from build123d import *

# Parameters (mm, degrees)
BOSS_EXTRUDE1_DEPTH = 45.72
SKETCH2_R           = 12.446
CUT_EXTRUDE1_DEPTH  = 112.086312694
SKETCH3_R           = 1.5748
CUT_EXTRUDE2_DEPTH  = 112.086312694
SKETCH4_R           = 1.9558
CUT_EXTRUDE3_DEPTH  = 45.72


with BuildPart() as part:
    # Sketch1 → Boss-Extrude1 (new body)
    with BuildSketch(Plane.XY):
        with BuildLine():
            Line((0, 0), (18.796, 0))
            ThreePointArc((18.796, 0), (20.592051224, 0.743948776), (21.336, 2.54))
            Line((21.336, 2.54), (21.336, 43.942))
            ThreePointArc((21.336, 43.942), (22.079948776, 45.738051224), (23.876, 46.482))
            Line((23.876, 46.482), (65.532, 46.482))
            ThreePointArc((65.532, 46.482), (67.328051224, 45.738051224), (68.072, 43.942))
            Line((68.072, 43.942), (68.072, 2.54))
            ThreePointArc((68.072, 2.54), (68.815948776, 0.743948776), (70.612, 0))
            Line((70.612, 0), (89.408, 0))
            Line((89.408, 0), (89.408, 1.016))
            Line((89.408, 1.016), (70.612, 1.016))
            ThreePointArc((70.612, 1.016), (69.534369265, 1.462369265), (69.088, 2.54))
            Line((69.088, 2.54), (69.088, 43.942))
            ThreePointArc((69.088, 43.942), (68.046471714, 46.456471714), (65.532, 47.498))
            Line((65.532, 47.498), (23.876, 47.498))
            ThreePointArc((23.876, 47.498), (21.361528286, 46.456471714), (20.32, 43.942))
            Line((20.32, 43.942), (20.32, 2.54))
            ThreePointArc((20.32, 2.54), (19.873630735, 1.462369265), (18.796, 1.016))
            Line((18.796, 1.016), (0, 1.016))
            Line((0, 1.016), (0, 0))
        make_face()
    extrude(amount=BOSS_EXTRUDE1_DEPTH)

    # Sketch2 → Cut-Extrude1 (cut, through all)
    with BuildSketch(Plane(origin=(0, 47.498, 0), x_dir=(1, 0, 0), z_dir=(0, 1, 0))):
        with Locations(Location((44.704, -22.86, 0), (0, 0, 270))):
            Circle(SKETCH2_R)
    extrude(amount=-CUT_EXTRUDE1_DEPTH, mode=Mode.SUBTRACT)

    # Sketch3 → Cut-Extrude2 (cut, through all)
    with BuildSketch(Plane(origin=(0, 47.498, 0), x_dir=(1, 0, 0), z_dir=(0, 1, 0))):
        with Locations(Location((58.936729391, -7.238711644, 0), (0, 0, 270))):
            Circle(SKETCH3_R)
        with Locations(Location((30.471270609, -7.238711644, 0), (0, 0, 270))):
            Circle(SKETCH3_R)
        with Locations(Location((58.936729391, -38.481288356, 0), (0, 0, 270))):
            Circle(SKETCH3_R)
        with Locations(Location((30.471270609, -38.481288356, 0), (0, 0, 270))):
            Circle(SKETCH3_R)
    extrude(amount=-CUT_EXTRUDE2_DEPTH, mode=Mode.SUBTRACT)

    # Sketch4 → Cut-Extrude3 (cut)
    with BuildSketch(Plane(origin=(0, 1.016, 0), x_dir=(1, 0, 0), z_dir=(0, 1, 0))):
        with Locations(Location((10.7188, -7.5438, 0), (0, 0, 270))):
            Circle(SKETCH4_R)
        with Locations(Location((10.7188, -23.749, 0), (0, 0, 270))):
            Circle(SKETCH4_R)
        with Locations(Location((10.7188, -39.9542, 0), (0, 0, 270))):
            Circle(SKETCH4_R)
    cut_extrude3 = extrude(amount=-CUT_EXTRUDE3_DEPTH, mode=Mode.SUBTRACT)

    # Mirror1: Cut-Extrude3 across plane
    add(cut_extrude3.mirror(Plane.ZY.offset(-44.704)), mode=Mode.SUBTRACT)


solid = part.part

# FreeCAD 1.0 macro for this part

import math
import FreeCAD as App
import Part
import Sketcher
Q = App.Units.Quantity

doc = App.newDocument("Part")
body = doc.addObject("PartDesign::Body", "Body")

# Sketch on XY plane
sketch1 = doc.addObject("Sketcher::SketchObject", "Sketch")
body.addObject(sketch1)
sketch1.AttachmentSupport = (doc.XY_Plane, [""])
sketch1.MapMode = "FlatFace"
sketch1.addGeometry([
    Part.LineSegment(App.Vector(0, 0, 0), App.Vector(18.8, 0, 0)),  # 0
    Part.ArcOfCircle(Part.Circle(App.Vector(18.8, 2.5, 0), App.Vector(0, 0, 1), 2.5), math.radians(-90), math.radians(0)),  # 1
    Part.LineSegment(App.Vector(21.3, 2.5, 0), App.Vector(21.3, 43.9, 0)),  # 2
    Part.ArcOfCircle(Part.Circle(App.Vector(23.9, 43.9, 0), App.Vector(0, 0, 1), 2.5), math.radians(90), math.radians(180)),  # 3
    Part.LineSegment(App.Vector(23.9, 46.5, 0), App.Vector(65.5, 46.5, 0)),  # 4
    Part.ArcOfCircle(Part.Circle(App.Vector(65.5, 43.9, 0), App.Vector(0, 0, 1), 2.5), math.radians(0), math.radians(90)),  # 5
    Part.LineSegment(App.Vector(68.1, 43.9, 0), App.Vector(68.1, 2.5, 0)),  # 6
    Part.ArcOfCircle(Part.Circle(App.Vector(70.6, 2.5, 0), App.Vector(0, 0, 1), 2.5), math.radians(-180), math.radians(-90)),  # 7
    Part.LineSegment(App.Vector(70.6, 0, 0), App.Vector(89.4, 0, 0)),  # 8
    Part.LineSegment(App.Vector(89.4, 0, 0), App.Vector(89.4, 1, 0)),  # 9
    Part.LineSegment(App.Vector(89.4, 1, 0), App.Vector(70.6, 1, 0)),  # 10
    Part.ArcOfCircle(Part.Circle(App.Vector(70.6, 2.5, 0), App.Vector(0, 0, 1), 1.5), math.radians(180), math.radians(270)),  # 11
    Part.LineSegment(App.Vector(69.1, 2.5, 0), App.Vector(69.1, 43.9, 0)),  # 12
    Part.ArcOfCircle(Part.Circle(App.Vector(65.5, 43.9, 0), App.Vector(0, 0, 1), 3.6), math.radians(0), math.radians(90)),  # 13
    Part.LineSegment(App.Vector(65.5, 47.5, 0), App.Vector(23.9, 47.5, 0)),  # 14
    Part.ArcOfCircle(Part.Circle(App.Vector(23.9, 43.9, 0), App.Vector(0, 0, 1), 3.6), math.radians(90), math.radians(180)),  # 15
    Part.LineSegment(App.Vector(20.3, 43.9, 0), App.Vector(20.3, 2.5, 0)),  # 16
    Part.ArcOfCircle(Part.Circle(App.Vector(18.8, 2.5, 0), App.Vector(0, 0, 1), 1.5), math.radians(-90), math.radians(0)),  # 17
    Part.LineSegment(App.Vector(18.8, 1, 0), App.Vector(0, 1, 0)),  # 18
    Part.LineSegment(App.Vector(0, 1, 0), App.Vector(0, 0, 0)),  # 19
], False)
sketch1.addConstraint([
    Sketcher.Constraint("Tangent", 0, 2, 1, 1),
    Sketcher.Constraint("Tangent", 1, 2, 2, 1),
    Sketcher.Constraint("Tangent", 2, 2, 3, 2),
    Sketcher.Constraint("Tangent", 3, 1, 4, 1),
    Sketcher.Constraint("Tangent", 4, 2, 5, 2),
    Sketcher.Constraint("Tangent", 5, 1, 6, 1),
    Sketcher.Constraint("Tangent", 6, 2, 7, 1),
    Sketcher.Constraint("Tangent", 7, 2, 8, 1),
    Sketcher.Constraint("Coincident", 8, 2, 9, 1),
    Sketcher.Constraint("Coincident", 9, 2, 10, 1),
    Sketcher.Constraint("Tangent", 10, 2, 11, 2),
    Sketcher.Constraint("Tangent", 11, 1, 12, 1),
    Sketcher.Constraint("Tangent", 12, 2, 13, 1),
    Sketcher.Constraint("Tangent", 13, 2, 14, 1),
    Sketcher.Constraint("Tangent", 14, 2, 15, 1),
    Sketcher.Constraint("Tangent", 15, 2, 16, 1),
    Sketcher.Constraint("Tangent", 16, 2, 17, 2),
    Sketcher.Constraint("Tangent", 17, 1, 18, 1),
    Sketcher.Constraint("Coincident", 18, 2, 19, 1),
    Sketcher.Constraint("Coincident", 19, 2, 0, 1),
    Sketcher.Constraint("Horizontal", 0),
    Sketcher.Constraint("Vertical", 2),
    Sketcher.Constraint("Horizontal", 4),
    Sketcher.Constraint("Vertical", 6),
    Sketcher.Constraint("Horizontal", 8),
    Sketcher.Constraint("Vertical", 9),
    Sketcher.Constraint("Horizontal", 10),
    Sketcher.Constraint("Vertical", 12),
    Sketcher.Constraint("Horizontal", 14),
    Sketcher.Constraint("Vertical", 16),
    Sketcher.Constraint("Horizontal", 18),
    Sketcher.Constraint("Vertical", 19),
    Sketcher.Constraint("Coincident", 19, 2, -1, 1),
    Sketcher.Constraint("Coincident", 11, 3, 7, 3),
    Sketcher.Constraint("Coincident", 13, 3, 5, 3),
    Sketcher.Constraint("Coincident", 15, 3, 3, 3),
    Sketcher.Constraint("Coincident", 17, 3, 1, 3),
    Sketcher.Constraint("Equal", 1, 3),
    Sketcher.Constraint("Equal", 3, 5),
    Sketcher.Constraint("Equal", 5, 7),
    Sketcher.Constraint("PointOnObject", 7, 2, -1),
    Sketcher.Constraint("Equal", 0, 8),
    Sketcher.Constraint("Radius", 1, Q("0.1 in")),
    Sketcher.Constraint("Radius", 11, Q("0.06 in")),
    Sketcher.Constraint("DistanceX", 0, 1, 0, 2, Q("0.74 in")),
    Sketcher.Constraint("DistanceX", 4, 1, 4, 2, Q("1.64 in")),
    Sketcher.Constraint("DistanceY", 2, 1, 2, 2, Q("1.63 in")),
])
pad1 = doc.addObject("PartDesign::Pad", "Pad")
body.addObject(pad1)
pad1.Profile = sketch1
pad1.Length = Q("1.8 in")

# Sketch on XZ plane
sketch2 = doc.addObject("Sketcher::SketchObject", "Sketch001")
body.addObject(sketch2)
sketch2.AttachmentSupport = (doc.XZ_Plane, [""])
sketch2.MapMode = "FlatFace"
sketch2.AttachmentOffset = App.Placement(App.Vector(0, 0, -1.87 * 25.4), App.Rotation())
sketch2.addGeometry(Part.Circle(App.Vector(45, 23, 0), App.Vector(0, 0, 1), 12), False)
sketch2.addConstraint([
    Sketcher.Constraint("Diameter", 0, Q("0.98 in")),
    Sketcher.Constraint("DistanceY", -1, 1, 0, 3, Q("0.9 in")),
    Sketcher.Constraint("DistanceX", -1, 1, 0, 3, Q("1.76 in")),
])
pocket1 = doc.addObject("PartDesign::Pocket", "Pocket")
body.addObject(pocket1)
pocket1.Profile = sketch2
pocket1.Type = "ThroughAll"
pocket1.Reversed = True

# Sketch on XZ plane
sketch3 = doc.addObject("Sketcher::SketchObject", "Sketch002")
body.addObject(sketch3)
sketch3.AttachmentSupport = (doc.XZ_Plane, [""])
sketch3.MapMode = "FlatFace"
sketch3.AttachmentOffset = App.Placement(App.Vector(0, 0, -1.87 * 25.4), App.Rotation())
sketch3.addGeometry([
    Part.Circle(App.Vector(58.9, 7.2, 0), App.Vector(0, 0, 1), 1.6),
    Part.Circle(App.Vector(30.5, 7.2, 0), App.Vector(0, 0, 1), 1.6),
    Part.Circle(App.Vector(58.9, 38.5, 0), App.Vector(0, 0, 1), 1.6),
    Part.Circle(App.Vector(30.5, 38.5, 0), App.Vector(0, 0, 1), 1.6),
], False)
sketch3.addConstraint([
    Sketcher.Constraint("Equal", 0, 1),
    Sketcher.Constraint("Equal", 1, 2),
    Sketcher.Constraint("Equal", 2, 3),
    Sketcher.Constraint("Horizontal", 0, 3, 1, 3),
    Sketcher.Constraint("Horizontal", 2, 3, 3, 3),
    Sketcher.Constraint("Vertical", 0, 3, 2, 3),
    Sketcher.Constraint("Vertical", 1, 3, 3, 3),
    Sketcher.Constraint("Diameter", 0, Q("0.124 in")),
    Sketcher.Constraint("DistanceX", -1, 1, 0, 3, Q("58.936729 mm")),
    Sketcher.Constraint("DistanceY", -1, 1, 0, 3, Q("7.238712 mm")),
    Sketcher.Constraint("DistanceX", -1, 1, 1, 3, Q("30.471271 mm")),
    Sketcher.Constraint("DistanceY", -1, 1, 2, 3, Q("38.481288 mm")),
])
pocket2 = doc.addObject("PartDesign::Pocket", "Pocket001")
body.addObject(pocket2)
pocket2.Profile = sketch3
pocket2.Type = "ThroughAll"
pocket2.Reversed = True

# Sketch on XZ plane
sketch4 = doc.addObject("Sketcher::SketchObject", "Sketch003")
body.addObject(sketch4)
sketch4.AttachmentSupport = (doc.XZ_Plane, [""])
sketch4.MapMode = "FlatFace"
sketch4.AttachmentOffset = App.Placement(App.Vector(0, 0, -0.04 * 25.4), App.Rotation())
sketch4.addGeometry([
    Part.Circle(App.Vector(10.7, 7.5, 0), App.Vector(0, 0, 1), 2),
    Part.Circle(App.Vector(10.7, 23.7, 0), App.Vector(0, 0, 1), 2),
    Part.Circle(App.Vector(10.7, 40, 0), App.Vector(0, 0, 1), 2),
], False)
sketch4.addConstraint([
    Sketcher.Constraint("Equal", 0, 1),
    Sketcher.Constraint("Equal", 1, 2),
    Sketcher.Constraint("Vertical", 0, 3, 1, 3),
    Sketcher.Constraint("Vertical", 1, 3, 2, 3),
    Sketcher.Constraint("Diameter", 0, Q("0.154 in")),
    Sketcher.Constraint("DistanceX", -1, 1, 0, 3, Q("0.422 in")),
    Sketcher.Constraint("DistanceY", -1, 1, 0, 3, Q("0.297 in")),
    Sketcher.Constraint("DistanceY", -1, 1, 1, 3, Q("0.935 in")),
    Sketcher.Constraint("DistanceY", -1, 1, 2, 3, Q("1.573 in")),
])
pocket3 = doc.addObject("PartDesign::Pocket", "Pocket002")
body.addObject(pocket3)
pocket3.Profile = sketch4
pocket3.Length = Q("1.8 in")
pocket3.Reversed = True
doc.recompute()

datumplane = doc.addObject("PartDesign::Plane", "DatumPlane")
body.addObject(datumplane)
datumplane.AttachmentSupport = (doc.YZ_Plane, [""])
datumplane.MapMode = "FlatFace"
datumplane.AttachmentOffset = App.Placement(App.Vector(0, 0, 1.76 * 25.4), App.Rotation())
mirrored = doc.addObject("PartDesign::Mirrored", "Mirrored")
body.addObject(mirrored)
mirrored.Originals = [pocket3]
mirrored.MirrorPlane = (datumplane, [""])
body.Tip = mirrored

doc.recompute()
